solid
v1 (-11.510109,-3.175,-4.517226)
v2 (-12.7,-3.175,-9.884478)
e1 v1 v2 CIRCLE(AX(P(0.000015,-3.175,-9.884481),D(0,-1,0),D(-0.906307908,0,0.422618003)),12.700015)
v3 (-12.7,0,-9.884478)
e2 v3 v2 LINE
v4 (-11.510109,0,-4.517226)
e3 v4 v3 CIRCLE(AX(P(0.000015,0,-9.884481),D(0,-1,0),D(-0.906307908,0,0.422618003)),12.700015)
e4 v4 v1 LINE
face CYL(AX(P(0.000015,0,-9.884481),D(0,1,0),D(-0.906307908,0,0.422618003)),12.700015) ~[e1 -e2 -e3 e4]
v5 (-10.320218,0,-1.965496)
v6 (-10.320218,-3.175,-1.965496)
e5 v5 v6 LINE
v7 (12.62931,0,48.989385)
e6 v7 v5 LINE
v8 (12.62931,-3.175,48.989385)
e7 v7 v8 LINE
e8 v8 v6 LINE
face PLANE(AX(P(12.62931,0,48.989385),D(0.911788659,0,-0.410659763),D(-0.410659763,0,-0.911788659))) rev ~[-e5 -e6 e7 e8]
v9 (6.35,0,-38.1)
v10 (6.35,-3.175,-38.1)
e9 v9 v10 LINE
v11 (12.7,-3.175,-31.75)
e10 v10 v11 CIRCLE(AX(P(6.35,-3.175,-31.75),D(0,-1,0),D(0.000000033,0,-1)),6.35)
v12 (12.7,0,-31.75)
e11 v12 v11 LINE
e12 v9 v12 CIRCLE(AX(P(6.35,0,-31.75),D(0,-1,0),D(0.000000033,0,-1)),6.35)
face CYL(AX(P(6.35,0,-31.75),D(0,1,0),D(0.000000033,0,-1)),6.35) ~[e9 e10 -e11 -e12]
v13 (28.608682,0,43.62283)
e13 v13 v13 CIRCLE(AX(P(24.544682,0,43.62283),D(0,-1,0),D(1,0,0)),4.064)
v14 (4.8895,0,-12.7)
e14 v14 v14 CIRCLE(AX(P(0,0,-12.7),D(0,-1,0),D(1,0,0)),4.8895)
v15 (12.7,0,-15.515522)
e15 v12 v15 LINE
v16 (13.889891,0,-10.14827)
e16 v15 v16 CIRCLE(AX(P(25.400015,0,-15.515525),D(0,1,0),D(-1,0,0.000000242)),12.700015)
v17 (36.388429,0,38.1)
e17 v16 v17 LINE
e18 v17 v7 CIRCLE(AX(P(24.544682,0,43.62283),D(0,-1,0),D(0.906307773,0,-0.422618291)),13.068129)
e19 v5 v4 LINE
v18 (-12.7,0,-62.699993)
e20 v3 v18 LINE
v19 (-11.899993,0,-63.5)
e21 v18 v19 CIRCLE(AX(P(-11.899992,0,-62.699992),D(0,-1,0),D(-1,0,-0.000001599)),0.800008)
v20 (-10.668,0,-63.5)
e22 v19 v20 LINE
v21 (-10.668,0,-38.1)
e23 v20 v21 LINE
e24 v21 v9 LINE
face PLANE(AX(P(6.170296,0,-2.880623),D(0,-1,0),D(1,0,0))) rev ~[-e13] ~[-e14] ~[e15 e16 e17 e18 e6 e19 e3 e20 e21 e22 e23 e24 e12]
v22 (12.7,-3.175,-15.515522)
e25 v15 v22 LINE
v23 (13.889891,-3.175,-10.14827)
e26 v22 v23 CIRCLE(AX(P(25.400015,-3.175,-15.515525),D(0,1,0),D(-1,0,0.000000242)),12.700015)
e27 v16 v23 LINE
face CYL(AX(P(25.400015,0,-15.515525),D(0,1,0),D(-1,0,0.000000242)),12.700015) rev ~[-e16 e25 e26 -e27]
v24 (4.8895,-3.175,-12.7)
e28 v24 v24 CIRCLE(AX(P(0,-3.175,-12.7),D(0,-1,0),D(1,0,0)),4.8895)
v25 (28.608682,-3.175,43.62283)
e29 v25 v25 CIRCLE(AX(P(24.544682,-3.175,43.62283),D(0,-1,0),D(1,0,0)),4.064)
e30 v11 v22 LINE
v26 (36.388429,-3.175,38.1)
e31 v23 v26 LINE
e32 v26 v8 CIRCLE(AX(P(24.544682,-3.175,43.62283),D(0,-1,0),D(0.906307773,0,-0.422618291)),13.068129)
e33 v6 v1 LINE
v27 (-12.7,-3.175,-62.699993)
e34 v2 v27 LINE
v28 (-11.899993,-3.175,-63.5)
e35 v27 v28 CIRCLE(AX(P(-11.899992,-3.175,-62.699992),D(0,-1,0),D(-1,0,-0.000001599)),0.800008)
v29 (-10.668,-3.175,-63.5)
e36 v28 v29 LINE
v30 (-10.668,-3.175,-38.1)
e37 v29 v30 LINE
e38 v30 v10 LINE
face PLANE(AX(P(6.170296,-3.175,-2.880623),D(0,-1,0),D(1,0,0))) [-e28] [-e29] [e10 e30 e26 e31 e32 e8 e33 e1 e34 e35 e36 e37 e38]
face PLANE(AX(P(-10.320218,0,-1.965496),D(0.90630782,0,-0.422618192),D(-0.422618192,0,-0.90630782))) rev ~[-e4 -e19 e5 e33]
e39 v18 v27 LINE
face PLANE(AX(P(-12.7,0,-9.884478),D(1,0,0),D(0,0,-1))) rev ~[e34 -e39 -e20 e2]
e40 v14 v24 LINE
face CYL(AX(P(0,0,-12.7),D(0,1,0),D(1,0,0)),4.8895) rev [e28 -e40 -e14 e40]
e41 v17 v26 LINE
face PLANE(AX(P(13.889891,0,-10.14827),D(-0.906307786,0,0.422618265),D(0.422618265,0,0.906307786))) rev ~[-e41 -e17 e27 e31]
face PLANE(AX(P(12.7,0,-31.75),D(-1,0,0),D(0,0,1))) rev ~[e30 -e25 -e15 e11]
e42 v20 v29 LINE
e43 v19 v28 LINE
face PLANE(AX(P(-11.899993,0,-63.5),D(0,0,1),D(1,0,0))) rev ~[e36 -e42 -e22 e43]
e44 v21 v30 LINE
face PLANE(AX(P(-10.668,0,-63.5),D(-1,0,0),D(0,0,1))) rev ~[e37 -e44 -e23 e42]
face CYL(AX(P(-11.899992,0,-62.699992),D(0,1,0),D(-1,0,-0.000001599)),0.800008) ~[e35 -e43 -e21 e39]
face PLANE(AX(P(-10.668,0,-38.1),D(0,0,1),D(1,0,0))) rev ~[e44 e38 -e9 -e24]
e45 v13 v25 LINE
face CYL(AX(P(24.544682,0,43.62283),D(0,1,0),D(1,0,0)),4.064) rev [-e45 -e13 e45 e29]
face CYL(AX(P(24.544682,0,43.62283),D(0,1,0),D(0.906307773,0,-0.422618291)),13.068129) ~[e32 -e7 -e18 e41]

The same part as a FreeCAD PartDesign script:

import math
import FreeCAD as App
import Part
import Sketcher
Q = App.Units.Quantity

doc = App.newDocument("Part")
params = doc.addObject("Spreadsheet::Sheet", "Params")
for row, (alias, value) in enumerate([
    ("sketch1_diameter", "0.32 in"),
    ("sketch1_height", "1 in"),
    ("sketch1_radius", "0.25 in"),
    ("sketch1_diameter2", "0.385 in"),
    ("sketch1_width", "0.67 in"),
    ("pad1_length", "0.125 in"),
], start=1):
    params.set(f"A{row}", alias)
    params.set(f"B{row}", "=" + value)
    params.setAlias(f"B{row}", alias)

body = doc.addObject("PartDesign::Body", "Body")

sketch1 = doc.addObject("Sketcher::SketchObject", "Sketch")
body.addObject(sketch1)
sketch1.AttachmentSupport = (doc.XZ_Plane, [""])
sketch1.MapMode = "FlatFace"
sketch1.addGeometry([
    Part.LineSegment(App.Vector(-11.9, -63.5, 0), App.Vector(-10.7, -63.5, 0)),
    Part.LineSegment(App.Vector(-10.7, -63.5, 0), App.Vector(-10.7, -38.1, 0)),
    Part.LineSegment(App.Vector(-10.7, -38.1, 0), App.Vector(6.3, -38.1, 0)),
    Part.ArcOfCircle(Part.Circle(App.Vector(6.3, -31.7, 0), App.Vector(0, 0, 1), 6.4), math.radians(-90), math.radians(0)),
    Part.LineSegment(App.Vector(12.7, -31.8, 0), App.Vector(12.7, -15.5, 0)),
    Part.ArcOfCircle(Part.Circle(App.Vector(25.4, -15.5, 0), App.Vector(0, 0, 1), 12.7), math.radians(155), math.radians(180)),
    Part.LineSegment(App.Vector(13.9, -10.1, 0), App.Vector(36.4, 38.1, 0)),
    Part.ArcOfCircle(Part.Circle(App.Vector(24.5, 43.6, 0), App.Vector(0, 0, 1), 13.1), math.radians(-25), math.radians(156)),
    Part.LineSegment(App.Vector(12.6, 49, 0), App.Vector(-10.3, -2, 0)),
    Part.LineSegment(App.Vector(-10.3, -2, 0), App.Vector(-11.5, -4.5, 0)),
    Part.ArcOfCircle(Part.Circle(App.Vector(0, -9.9, 0), App.Vector(0, 0, 1), 12.7), math.radians(155), math.radians(180)),
    Part.LineSegment(App.Vector(-12.7, -9.9, 0), App.Vector(-12.7, -62.7, 0)),
    Part.ArcOfCircle(Part.Circle(App.Vector(-11.9, -62.7, 0), App.Vector(0, 0, 1), 0.8), math.radians(-180), math.radians(-90)),
    Part.Circle(App.Vector(0, -12.7, 0), App.Vector(0, 0, 1), 4.9),
    Part.Circle(App.Vector(24.5, 43.6, 0), App.Vector(0, 0, 1), 4.1),
], False)
sketch1.addConstraint([
    Sketcher.Constraint("Coincident", 0, 2, 1, 1),
    Sketcher.Constraint("Coincident", 1, 2, 2, 1),
    Sketcher.Constraint("Tangent", 2, 2, 3, 1),
    Sketcher.Constraint("Tangent", 3, 2, 4, 1),
    Sketcher.Constraint("Tangent", 4, 2, 5, 2),
    Sketcher.Constraint("Tangent", 5, 1, 6, 1),
    Sketcher.Constraint("Tangent", 6, 2, 7, 1),
    Sketcher.Constraint("Tangent", 7, 2, 8, 1),
    Sketcher.Constraint("Coincident", 8, 2, 9, 1),
    Sketcher.Constraint("Tangent", 9, 2, 10, 1),
    Sketcher.Constraint("Tangent", 10, 2, 11, 1),
    Sketcher.Constraint("Tangent", 11, 2, 12, 1),
    Sketcher.Constraint("Tangent", 12, 2, 0, 1),
    Sketcher.Constraint("Horizontal", 0),
    Sketcher.Constraint("Vertical", 1),
    Sketcher.Constraint("Horizontal", 2),
    Sketcher.Constraint("Vertical", 4),
    Sketcher.Constraint("Vertical", 11),
    Sketcher.Constraint("Coincident", 14, 3, 7, 3),
    Sketcher.Constraint("Equal", 5, 10),
    Sketcher.Constraint("PointOnObject", 13, 3, -2),
    Sketcher.Constraint("Parallel", 6, 9),
    Sketcher.Constraint("Diameter", 14, Q("0.32 in")),
    Sketcher.Constraint("DistanceY", 1, 1, 1, 2, Q("1 in")),
    Sketcher.Constraint("Radius", 3, Q("0.25 in")),
    Sketcher.Constraint("Diameter", 13, Q("0.385 in")),
    Sketcher.Constraint("Angle", 6, Q("65 deg")),
    Sketcher.Constraint("DistanceX", 10, 3, 5, 3, Q("1 in")),
    Sketcher.Constraint("DistanceY", 0, 2, 13, 3, Q("2 in")),
    Sketcher.Constraint("DistanceX", 2, 1, 2, 2, Q("0.67 in")),
    Sketcher.Constraint("DistanceY", 13, 3, -1, 1, Q("0.5 in")),
    Sketcher.Constraint("DistanceX", -1, 1, 3, 2, Q("0.5 in")),
    Sketcher.Constraint("DistanceY", -1, 1, 6, 2, Q("1.5 in")),
    Sketcher.Constraint("Radius", 7, 13.068129),
    Sketcher.Constraint("Radius", 12, 0.800008),
    Sketcher.Constraint("Radius", 5, 12.700015),
    Sketcher.Constraint("Distance", 8, 55.88453),
    Sketcher.Constraint("DistanceY", 4, 1, 4, 2, 16.234478),
    Sketcher.Constraint("DistanceY", 11, 2, 11, 1, 52.815515),
])
sketch1.setExpression("Constraints[22]", "Params.sketch1_diameter")
sketch1.setExpression("Constraints[23]", "Params.sketch1_height")
sketch1.setExpression("Constraints[24]", "Params.sketch1_radius")
sketch1.setExpression("Constraints[25]", "Params.sketch1_diameter2")
sketch1.setExpression("Constraints[29]", "Params.sketch1_width")
pad1 = doc.addObject("PartDesign::Pad", "Pad")
body.addObject(pad1)
pad1.Profile = sketch1
pad1.setExpression("Length", "Params.pad1_length")

doc.recompute()
